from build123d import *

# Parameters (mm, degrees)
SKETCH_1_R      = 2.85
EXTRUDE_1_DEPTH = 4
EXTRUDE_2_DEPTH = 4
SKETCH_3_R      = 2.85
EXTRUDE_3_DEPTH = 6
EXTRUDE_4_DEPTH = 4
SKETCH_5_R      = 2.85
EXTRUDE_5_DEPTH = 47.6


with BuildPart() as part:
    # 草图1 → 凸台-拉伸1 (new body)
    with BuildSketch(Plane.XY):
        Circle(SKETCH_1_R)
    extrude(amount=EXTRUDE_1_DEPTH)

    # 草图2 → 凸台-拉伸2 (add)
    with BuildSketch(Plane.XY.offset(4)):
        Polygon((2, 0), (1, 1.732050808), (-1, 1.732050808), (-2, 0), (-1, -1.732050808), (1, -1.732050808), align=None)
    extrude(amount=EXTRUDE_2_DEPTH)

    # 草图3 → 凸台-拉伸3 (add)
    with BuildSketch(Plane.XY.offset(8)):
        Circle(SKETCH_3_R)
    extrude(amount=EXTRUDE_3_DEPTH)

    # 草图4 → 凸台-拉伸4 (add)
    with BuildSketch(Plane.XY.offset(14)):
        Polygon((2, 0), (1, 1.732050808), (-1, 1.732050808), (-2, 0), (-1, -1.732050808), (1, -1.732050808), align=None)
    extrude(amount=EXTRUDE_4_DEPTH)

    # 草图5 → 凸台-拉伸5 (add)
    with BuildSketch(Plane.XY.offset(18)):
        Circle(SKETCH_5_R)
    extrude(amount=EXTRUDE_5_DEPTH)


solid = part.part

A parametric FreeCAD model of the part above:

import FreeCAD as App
import Part
import Sketcher
Q = App.Units.Quantity

doc = App.newDocument("Part")
body = doc.addObject("PartDesign::Body", "Body")

sketch1 = body.newObject("Sketcher::SketchObject", "Sketch")
sketch1.AttachmentSupport = (doc.getObject("XY_Plane"), [""])
sketch1.MapMode = "FlatFace"
sketch1.addGeometry(Part.Circle(App.Vector(0, 0, 0), App.Vector(0, 0, 1), 2.9), False)
sketch1.addConstraint(Sketcher.Constraint("Coincident", 0, 3, -1, 1))
sketch1.addConstraint(Sketcher.Constraint("Diameter", 0, 5.7))
pad1 = body.newObject("PartDesign::Pad", "Pad")
pad1.Profile = sketch1
pad1.Length = 4

sketch2 = body.newObject("Sketcher::SketchObject", "Sketch001")
sketch2.AttachmentSupport = (doc.getObject("XY_Plane"), [""])
sketch2.MapMode = "FlatFace"
sketch2.AttachmentOffset = App.Placement(App.Vector(0, 0, 4), App.Rotation())
sketch2.addGeometry(Part.LineSegment(App.Vector(2, 0, 0), App.Vector(1, 1.7, 0)), False)
sketch2.addGeometry(Part.LineSegment(App.Vector(1, 1.7, 0), App.Vector(-1, 1.7, 0)), False)
sketch2.addGeometry(Part.LineSegment(App.Vector(-1, 1.7, 0), App.Vector(-2, 0, 0)), False)
sketch2.addGeometry(Part.LineSegment(App.Vector(-2, 0, 0), App.Vector(-1, -1.7, 0)), False)
sketch2.addGeometry(Part.LineSegment(App.Vector(-1, -1.7, 0), App.Vector(1, -1.7, 0)), False)
sketch2.addGeometry(Part.LineSegment(App.Vector(1, -1.7, 0), App.Vector(2, 0, 0)), False)
sketch2.addConstraint(Sketcher.Constraint("Coincident", 0, 2, 1, 1))
sketch2.addConstraint(Sketcher.Constraint("Coincident", 1, 2, 2, 1))
sketch2.addConstraint(Sketcher.Constraint("Coincident", 2, 2, 3, 1))
sketch2.addConstraint(Sketcher.Constraint("Coincident", 3, 2, 4, 1))
sketch2.addConstraint(Sketcher.Constraint("Coincident", 4, 2, 5, 1))
sketch2.addConstraint(Sketcher.Constraint("Coincident", 5, 2, 0, 1))
sketch2.addConstraint(Sketcher.Constraint("Horizontal", 1))
sketch2.addConstraint(Sketcher.Constraint("Horizontal", 4))
sketch2.addConstraint(Sketcher.Constraint("Symmetric", 0, 2, 3, 2, -1, 1))
sketch2.addConstraint(Sketcher.Constraint("Symmetric", 2, 2, 5, 2, -1, 1))
sketch2.addConstraint(Sketcher.Constraint("PointOnObject", 2, 2, -1))
sketch2.addConstraint(Sketcher.Constraint("Parallel", 2, 5))
sketch2.addConstraint(Sketcher.Constraint("Vertical", 1, 2, 3, 2))
sketch2.addConstraint(Sketcher.Constraint("DistanceX", 1, 2, 1, 1, 2.0))
sketch2.addConstraint(Sketcher.Constraint("Angle", 0, Q("120 deg")))
sketch2.addConstraint(Sketcher.Constraint("Distance", 0, 2.0))
pad2 = body.newObject("PartDesign::Pad", "Pad001")
pad2.Profile = sketch2
pad2.Length = 4

sketch3 = body.newObject("Sketcher::SketchObject", "Sketch002")
sketch3.AttachmentSupport = (doc.getObject("XY_Plane"), [""])
sketch3.MapMode = "FlatFace"
sketch3.AttachmentOffset = App.Placement(App.Vector(0, 0, 8), App.Rotation())
sketch3.addGeometry(Part.Circle(App.Vector(0, 0, 0), App.Vector(0, 0, 1), 2.9), False)
sketch3.addConstraint(Sketcher.Constraint("Coincident", 0, 3, -1, 1))
sketch3.addConstraint(Sketcher.Constraint("Diameter", 0, 5.7))
pad3 = body.newObject("PartDesign::Pad", "Pad002")
pad3.Profile = sketch3
pad3.Length = 6

sketch4 = body.newObject("Sketcher::SketchObject", "Sketch003")
sketch4.AttachmentSupport = (doc.getObject("XY_Plane"), [""])
sketch4.MapMode = "FlatFace"
sketch4.AttachmentOffset = App.Placement(App.Vector(0, 0, 14), App.Rotation())
sketch4.addGeometry(Part.LineSegment(App.Vector(2, 0, 0), App.Vector(1, 1.7, 0)), False)
sketch4.addGeometry(Part.LineSegment(App.Vector(1, 1.7, 0), App.Vector(-1, 1.7, 0)), False)
sketch4.addGeometry(Part.LineSegment(App.Vector(-1, 1.7, 0), App.Vector(-2, 0, 0)), False)
sketch4.addGeometry(Part.LineSegment(App.Vector(-2, 0, 0), App.Vector(-1, -1.7, 0)), False)
sketch4.addGeometry(Part.LineSegment(App.Vector(-1, -1.7, 0), App.Vector(1, -1.7, 0)), False)
sketch4.addGeometry(Part.LineSegment(App.Vector(1, -1.7, 0), App.Vector(2, 0, 0)), False)
sketch4.addConstraint(Sketcher.Constraint("Coincident", 0, 2, 1, 1))
sketch4.addConstraint(Sketcher.Constraint("Coincident", 1, 2, 2, 1))
sketch4.addConstraint(Sketcher.Constraint("Coincident", 2, 2, 3, 1))
sketch4.addConstraint(Sketcher.Constraint("Coincident", 3, 2, 4, 1))
sketch4.addConstraint(Sketcher.Constraint("Coincident", 4, 2, 5, 1))
sketch4.addConstraint(Sketcher.Constraint("Coincident", 5, 2, 0, 1))
sketch4.addConstraint(Sketcher.Constraint("Horizontal", 1))
sketch4.addConstraint(Sketcher.Constraint("Horizontal", 4))
sketch4.addConstraint(Sketcher.Constraint("Symmetric", 0, 2, 3, 2, -1, 1))
sketch4.addConstraint(Sketcher.Constraint("Symmetric", 2, 2, 5, 2, -1, 1))
sketch4.addConstraint(Sketcher.Constraint("PointOnObject", 2, 2, -1))
sketch4.addConstraint(Sketcher.Constraint("Parallel", 2, 5))
sketch4.addConstraint(Sketcher.Constraint("Vertical", 1, 2, 3, 2))
sketch4.addConstraint(Sketcher.Constraint("DistanceX", 1, 2, 1, 1, 2.0))
sketch4.addConstraint(Sketcher.Constraint("Angle", 0, Q("120 deg")))
sketch4.addConstraint(Sketcher.Constraint("Distance", 0, 2.0))
pad4 = body.newObject("PartDesign::Pad", "Pad003")
pad4.Profile = sketch4
pad4.Length = 4

sketch5 = body.newObject("Sketcher::SketchObject", "Sketch004")
sketch5.AttachmentSupport = (doc.getObject("XY_Plane"), [""])
sketch5.MapMode = "FlatFace"
sketch5.AttachmentOffset = App.Placement(App.Vector(0, 0, 18), App.Rotation())
sketch5.addGeometry(Part.Circle(App.Vector(0, 0, 0), App.Vector(0, 0, 1), 2.9), False)
sketch5.addConstraint(Sketcher.Constraint("Coincident", 0, 3, -1, 1))
sketch5.addConstraint(Sketcher.Constraint("Diameter", 0, 5.7))
pad5 = body.newObject("PartDesign::Pad", "Pad004")
pad5.Profile = sketch5
pad5.Length = 47.6

doc.recompute()
